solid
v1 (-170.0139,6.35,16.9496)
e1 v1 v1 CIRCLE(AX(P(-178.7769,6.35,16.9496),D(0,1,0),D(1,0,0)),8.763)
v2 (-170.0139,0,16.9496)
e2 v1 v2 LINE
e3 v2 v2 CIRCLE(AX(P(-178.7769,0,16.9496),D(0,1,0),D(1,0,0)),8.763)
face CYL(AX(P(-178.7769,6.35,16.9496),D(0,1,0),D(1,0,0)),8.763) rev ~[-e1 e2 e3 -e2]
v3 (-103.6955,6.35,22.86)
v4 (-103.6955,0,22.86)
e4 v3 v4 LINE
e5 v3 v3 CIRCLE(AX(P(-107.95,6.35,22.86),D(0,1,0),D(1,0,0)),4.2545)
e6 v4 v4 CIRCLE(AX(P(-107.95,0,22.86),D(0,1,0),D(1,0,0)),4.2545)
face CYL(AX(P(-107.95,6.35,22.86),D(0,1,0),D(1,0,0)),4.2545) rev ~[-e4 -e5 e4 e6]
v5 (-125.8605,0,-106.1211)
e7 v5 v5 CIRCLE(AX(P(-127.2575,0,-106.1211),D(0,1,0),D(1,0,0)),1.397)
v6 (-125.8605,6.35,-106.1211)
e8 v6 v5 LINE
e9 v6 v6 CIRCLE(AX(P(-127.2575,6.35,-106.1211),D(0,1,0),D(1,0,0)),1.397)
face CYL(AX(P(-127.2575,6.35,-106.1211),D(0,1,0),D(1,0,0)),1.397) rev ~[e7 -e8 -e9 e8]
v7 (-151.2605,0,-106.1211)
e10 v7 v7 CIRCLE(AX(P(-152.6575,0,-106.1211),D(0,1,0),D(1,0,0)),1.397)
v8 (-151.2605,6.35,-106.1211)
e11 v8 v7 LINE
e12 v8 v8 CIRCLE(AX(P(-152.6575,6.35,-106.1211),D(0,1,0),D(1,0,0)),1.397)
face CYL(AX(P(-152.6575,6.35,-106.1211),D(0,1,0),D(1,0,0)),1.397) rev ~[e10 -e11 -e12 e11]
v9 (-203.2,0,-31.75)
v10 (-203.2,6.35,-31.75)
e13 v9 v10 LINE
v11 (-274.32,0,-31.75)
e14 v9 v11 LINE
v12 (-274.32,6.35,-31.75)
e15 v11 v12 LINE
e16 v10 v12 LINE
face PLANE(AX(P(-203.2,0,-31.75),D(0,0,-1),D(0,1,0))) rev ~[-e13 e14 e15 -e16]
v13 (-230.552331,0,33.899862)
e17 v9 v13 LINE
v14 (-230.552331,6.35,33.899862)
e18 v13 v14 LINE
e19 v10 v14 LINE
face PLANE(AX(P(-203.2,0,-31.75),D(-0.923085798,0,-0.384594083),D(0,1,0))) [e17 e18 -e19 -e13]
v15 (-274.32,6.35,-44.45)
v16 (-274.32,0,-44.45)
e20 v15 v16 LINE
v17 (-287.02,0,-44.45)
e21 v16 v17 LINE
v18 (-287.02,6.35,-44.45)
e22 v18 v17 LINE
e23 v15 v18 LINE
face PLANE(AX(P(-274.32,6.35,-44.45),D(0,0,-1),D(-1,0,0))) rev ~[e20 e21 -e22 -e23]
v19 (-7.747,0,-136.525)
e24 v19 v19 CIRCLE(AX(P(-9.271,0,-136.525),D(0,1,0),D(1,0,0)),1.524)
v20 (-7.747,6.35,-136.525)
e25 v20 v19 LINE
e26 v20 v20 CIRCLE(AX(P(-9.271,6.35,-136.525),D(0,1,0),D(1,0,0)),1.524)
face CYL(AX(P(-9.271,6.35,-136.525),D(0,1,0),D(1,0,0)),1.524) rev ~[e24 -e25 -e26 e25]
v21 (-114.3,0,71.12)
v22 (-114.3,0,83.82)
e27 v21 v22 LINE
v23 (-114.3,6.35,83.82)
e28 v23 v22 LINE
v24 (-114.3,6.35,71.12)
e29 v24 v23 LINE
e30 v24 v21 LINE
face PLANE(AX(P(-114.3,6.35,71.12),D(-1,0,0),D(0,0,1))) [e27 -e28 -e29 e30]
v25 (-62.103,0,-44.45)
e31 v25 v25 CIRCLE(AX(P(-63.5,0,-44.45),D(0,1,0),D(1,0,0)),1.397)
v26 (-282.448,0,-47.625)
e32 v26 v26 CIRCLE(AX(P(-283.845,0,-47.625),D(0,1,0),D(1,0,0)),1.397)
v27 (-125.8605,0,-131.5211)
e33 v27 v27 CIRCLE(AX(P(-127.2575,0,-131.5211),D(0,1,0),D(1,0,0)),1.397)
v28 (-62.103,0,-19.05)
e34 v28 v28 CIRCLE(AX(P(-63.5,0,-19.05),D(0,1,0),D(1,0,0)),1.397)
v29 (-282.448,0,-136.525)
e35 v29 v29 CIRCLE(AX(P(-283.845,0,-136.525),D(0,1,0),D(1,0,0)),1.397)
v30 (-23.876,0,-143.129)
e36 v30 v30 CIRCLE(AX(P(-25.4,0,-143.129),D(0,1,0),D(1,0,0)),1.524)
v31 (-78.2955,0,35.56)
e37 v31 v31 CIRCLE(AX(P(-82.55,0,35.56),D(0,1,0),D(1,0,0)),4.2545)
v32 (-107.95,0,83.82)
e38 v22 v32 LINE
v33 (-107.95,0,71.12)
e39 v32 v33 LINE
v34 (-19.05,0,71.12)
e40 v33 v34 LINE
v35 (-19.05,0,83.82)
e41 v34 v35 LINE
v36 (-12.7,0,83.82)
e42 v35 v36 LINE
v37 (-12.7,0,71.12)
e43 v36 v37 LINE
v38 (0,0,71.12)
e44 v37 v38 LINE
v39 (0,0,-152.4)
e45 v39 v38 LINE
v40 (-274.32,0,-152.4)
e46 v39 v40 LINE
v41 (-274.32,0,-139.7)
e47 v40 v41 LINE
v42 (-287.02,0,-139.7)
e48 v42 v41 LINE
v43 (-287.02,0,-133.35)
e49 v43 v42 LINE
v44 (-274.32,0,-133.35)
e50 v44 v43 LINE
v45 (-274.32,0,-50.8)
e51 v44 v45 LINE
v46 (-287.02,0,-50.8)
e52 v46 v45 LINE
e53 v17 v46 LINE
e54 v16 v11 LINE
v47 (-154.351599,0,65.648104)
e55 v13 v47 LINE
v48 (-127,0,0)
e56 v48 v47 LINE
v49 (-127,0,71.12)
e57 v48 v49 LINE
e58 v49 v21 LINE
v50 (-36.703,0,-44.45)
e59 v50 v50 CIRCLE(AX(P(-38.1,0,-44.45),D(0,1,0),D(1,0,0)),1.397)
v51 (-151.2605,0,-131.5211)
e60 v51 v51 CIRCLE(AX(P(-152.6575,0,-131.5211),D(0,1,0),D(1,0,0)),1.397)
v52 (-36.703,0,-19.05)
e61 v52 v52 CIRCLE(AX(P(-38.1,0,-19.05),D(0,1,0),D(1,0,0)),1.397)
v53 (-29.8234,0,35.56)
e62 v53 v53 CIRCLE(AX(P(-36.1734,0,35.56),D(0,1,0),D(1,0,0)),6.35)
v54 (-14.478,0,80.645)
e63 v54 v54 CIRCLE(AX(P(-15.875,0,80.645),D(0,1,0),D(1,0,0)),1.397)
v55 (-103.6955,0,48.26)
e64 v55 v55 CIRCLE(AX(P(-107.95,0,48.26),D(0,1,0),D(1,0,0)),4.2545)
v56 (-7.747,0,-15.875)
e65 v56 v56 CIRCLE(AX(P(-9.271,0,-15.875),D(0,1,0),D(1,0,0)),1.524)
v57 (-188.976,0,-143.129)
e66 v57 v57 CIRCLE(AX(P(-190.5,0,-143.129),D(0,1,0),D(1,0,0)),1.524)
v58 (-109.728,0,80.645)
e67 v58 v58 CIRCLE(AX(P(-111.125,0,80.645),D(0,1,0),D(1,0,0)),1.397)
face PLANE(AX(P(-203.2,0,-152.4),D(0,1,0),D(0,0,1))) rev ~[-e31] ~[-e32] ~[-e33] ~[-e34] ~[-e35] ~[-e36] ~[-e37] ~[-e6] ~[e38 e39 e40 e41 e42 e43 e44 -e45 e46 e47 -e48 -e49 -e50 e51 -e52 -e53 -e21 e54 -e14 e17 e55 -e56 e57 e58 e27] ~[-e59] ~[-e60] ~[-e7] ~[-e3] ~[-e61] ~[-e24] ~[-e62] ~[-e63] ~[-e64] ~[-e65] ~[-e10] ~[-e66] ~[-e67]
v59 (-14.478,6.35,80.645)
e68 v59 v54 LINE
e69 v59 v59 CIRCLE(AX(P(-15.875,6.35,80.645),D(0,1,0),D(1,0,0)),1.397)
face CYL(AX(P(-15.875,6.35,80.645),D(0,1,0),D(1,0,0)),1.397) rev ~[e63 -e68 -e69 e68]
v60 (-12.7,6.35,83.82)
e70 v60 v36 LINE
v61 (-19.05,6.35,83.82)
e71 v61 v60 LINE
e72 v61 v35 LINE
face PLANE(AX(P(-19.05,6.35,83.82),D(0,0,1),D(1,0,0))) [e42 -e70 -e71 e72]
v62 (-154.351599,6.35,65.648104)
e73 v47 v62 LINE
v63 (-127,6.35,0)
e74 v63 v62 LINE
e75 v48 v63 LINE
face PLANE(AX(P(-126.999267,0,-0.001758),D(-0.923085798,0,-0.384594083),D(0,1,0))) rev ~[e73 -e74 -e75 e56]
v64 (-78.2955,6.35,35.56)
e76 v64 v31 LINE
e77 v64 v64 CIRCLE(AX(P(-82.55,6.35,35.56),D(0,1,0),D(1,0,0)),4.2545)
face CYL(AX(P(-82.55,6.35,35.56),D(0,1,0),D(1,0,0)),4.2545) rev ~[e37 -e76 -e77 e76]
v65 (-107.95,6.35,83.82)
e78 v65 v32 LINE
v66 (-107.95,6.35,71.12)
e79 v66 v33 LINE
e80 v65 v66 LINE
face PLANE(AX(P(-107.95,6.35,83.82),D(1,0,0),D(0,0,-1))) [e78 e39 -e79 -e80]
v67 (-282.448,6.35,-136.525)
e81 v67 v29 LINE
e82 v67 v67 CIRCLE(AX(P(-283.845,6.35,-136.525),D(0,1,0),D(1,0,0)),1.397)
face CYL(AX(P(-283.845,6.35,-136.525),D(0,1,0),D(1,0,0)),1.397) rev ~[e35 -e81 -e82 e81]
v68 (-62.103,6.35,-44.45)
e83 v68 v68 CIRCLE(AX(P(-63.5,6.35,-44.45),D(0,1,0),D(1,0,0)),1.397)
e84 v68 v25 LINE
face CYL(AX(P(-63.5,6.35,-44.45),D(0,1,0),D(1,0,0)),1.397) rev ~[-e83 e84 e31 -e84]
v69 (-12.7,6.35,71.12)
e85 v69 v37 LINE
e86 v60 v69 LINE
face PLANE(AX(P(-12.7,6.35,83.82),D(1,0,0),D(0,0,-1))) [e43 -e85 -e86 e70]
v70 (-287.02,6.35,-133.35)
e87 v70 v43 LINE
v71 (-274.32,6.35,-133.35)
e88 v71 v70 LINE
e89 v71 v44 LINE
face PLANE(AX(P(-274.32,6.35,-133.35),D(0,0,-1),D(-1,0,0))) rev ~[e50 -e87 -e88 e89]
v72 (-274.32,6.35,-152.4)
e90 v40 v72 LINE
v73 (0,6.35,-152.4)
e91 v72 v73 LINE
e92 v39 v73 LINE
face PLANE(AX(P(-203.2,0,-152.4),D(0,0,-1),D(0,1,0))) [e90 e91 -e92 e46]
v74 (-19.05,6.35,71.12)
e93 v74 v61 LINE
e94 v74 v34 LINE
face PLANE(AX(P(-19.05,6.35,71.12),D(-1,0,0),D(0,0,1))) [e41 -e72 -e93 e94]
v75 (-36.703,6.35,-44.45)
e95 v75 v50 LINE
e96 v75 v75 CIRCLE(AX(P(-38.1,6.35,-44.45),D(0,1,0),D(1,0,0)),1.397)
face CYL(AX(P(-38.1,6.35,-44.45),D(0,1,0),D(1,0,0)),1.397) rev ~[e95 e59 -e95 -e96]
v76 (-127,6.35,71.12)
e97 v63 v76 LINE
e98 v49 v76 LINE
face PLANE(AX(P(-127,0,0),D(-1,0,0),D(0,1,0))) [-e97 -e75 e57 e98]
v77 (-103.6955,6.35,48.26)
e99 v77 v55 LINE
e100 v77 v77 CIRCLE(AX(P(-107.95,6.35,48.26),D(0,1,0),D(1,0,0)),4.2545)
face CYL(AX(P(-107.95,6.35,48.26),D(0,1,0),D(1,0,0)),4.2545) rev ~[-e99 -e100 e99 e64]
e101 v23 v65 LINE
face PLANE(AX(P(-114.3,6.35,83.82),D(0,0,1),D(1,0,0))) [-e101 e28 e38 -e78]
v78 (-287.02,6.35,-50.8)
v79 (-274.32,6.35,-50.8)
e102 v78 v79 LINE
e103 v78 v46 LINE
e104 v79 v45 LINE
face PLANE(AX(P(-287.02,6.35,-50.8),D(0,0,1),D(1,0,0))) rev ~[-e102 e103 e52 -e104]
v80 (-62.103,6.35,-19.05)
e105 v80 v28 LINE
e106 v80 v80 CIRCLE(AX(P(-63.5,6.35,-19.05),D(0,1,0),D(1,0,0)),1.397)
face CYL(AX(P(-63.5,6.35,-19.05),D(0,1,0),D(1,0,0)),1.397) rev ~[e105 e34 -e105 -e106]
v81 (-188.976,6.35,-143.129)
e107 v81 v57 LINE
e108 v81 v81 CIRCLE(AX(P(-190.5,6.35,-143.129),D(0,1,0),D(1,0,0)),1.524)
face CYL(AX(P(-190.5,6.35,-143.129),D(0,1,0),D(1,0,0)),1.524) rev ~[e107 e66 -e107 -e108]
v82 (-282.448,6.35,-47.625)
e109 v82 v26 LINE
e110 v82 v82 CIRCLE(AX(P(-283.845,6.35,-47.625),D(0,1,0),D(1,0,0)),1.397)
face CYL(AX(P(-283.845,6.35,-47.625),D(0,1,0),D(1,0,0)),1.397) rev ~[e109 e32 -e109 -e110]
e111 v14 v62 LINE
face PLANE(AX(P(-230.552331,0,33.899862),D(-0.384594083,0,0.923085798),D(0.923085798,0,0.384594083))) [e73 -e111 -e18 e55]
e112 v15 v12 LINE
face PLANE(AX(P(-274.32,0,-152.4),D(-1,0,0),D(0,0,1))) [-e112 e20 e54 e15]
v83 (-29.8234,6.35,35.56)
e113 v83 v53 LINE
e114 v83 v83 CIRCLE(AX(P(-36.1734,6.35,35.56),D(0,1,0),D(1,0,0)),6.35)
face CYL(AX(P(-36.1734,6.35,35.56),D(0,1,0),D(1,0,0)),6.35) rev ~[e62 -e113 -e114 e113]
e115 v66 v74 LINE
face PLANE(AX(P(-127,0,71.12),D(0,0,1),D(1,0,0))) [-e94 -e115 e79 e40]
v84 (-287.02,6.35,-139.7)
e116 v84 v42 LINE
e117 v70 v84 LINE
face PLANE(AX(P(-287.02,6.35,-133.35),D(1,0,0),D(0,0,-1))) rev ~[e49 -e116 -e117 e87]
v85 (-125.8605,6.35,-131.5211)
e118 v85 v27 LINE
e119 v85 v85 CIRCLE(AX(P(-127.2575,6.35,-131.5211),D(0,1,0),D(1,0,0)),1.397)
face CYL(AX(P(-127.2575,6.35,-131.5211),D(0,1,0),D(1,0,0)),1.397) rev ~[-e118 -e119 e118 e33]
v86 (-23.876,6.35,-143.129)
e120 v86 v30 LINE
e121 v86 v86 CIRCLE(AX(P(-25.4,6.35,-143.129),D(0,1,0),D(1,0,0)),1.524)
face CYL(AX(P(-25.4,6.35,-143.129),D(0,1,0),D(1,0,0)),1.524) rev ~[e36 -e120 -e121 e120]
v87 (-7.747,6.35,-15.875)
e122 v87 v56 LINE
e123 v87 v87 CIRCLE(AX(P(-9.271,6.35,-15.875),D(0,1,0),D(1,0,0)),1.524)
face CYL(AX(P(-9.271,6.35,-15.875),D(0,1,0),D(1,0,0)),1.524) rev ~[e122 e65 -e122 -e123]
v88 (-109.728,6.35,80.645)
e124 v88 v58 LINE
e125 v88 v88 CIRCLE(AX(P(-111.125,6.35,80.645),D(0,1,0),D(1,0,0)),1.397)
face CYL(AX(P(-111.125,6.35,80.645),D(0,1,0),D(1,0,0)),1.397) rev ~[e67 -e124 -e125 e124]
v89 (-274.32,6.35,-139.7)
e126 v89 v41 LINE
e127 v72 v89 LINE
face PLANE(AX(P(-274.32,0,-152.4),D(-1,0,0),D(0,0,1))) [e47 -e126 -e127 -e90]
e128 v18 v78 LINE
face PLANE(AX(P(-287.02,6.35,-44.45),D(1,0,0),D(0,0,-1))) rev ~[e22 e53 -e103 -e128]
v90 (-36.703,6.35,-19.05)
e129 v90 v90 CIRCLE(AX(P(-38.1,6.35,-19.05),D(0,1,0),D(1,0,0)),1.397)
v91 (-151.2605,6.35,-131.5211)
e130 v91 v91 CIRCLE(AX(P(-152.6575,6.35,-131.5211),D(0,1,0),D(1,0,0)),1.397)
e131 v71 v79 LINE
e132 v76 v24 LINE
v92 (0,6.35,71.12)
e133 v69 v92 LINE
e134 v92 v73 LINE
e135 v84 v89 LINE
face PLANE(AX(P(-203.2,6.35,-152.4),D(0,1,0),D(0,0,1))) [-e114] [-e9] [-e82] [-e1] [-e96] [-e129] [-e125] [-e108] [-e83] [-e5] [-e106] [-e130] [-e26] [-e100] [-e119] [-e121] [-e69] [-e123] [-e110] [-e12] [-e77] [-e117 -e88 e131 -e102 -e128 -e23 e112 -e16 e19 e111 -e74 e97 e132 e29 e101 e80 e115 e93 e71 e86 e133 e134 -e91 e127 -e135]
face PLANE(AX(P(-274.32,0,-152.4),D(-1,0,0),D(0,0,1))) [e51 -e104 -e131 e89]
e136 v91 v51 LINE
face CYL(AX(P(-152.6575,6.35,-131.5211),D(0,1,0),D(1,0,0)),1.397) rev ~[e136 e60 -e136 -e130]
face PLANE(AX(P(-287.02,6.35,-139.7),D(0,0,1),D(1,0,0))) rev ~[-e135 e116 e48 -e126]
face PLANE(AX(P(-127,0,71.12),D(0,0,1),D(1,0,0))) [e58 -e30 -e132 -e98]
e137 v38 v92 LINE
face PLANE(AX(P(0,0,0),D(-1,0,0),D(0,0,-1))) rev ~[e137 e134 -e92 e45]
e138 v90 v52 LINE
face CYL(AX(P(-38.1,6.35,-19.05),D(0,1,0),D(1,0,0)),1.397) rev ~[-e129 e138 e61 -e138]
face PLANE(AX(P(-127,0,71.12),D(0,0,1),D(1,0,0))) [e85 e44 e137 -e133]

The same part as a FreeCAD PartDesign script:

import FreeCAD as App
import Part
import Sketcher
Q = App.Units.Quantity

doc = App.newDocument("Part")
params = doc.addObject("Spreadsheet::Sheet", "Params")
for row, (alias, value) in enumerate([
    ("sketch1_width", "5 in"),
    ("sketch1_width2", "8 in"),
    ("sketch1_height", "6 in"),
    ("sketch1_height2", "4.75 in"),
    ("pad1_length", "0.25 in"),
    ("sketch2_width", "5 in"),
    ("sketch2_height", "0.25 in"),
    ("pad2_length", "2.8 in"),
    ("sketch3_width", "3.25 in"),
    ("sketch3_height", "0.25 in"),
    ("pad3_length", "2.8 in"),
    ("sketch4_width", "0.25 in"),
    ("sketch4_height", "4.75 in"),
    ("pad4_length", "2.8 in"),
    ("sketch5_diameter", "0.11 in"),
    ("sketch5_height", "0.5 in"),
    ("sketch5_width", "0.25 in"),
    ("pad5_length", "0.25 in"),
    ("sketch6_diameter", "0.11 in"),
    ("sketch6_width", "0.5 in"),
    ("sketch6_height", "0.25 in"),
    ("pad6_length", "0.25 in"),
    ("sketch7_diameter", "0.11 in"),
    ("pocket1_length", "0.25 in"),
    ("sketch8_diameter", "0.12 in"),
    ("pocket2_length", "0.25 in"),
    ("sketch9_diameter", "0.69 in"),
    ("sketch9_diameter2", "0.335 in"),
    ("pocket3_length", "0.25 in"),
    ("sketch10_diameter", "0.5 in"),
    ("pocket4_length", "0.25 in"),
], start=1):
    params.set(f"A{row}", alias)
    params.set(f"B{row}", "=" + value)
    params.setAlias(f"B{row}", alias)

body = doc.addObject("PartDesign::Body", "Body")

sketch1 = body.newObject("Sketcher::SketchObject", "Sketch")
sketch1.AttachmentSupport = (doc.getObject("XZ_Plane"), [""])
sketch1.MapMode = "FlatFace"
sketch1.addGeometry(Part.LineSegment(App.Vector(-127, 0, 0), App.Vector(0, 0, 0)), False)
sketch1.addGeometry(Part.LineSegment(App.Vector(0, 0, 0), App.Vector(0, -152, 0)), False)
sketch1.addGeometry(Part.LineSegment(App.Vector(0, -152, 0), App.Vector(-203, -152, 0)), False)
sketch1.addGeometry(Part.LineSegment(App.Vector(-203, -152, 0), App.Vector(-203, -32, 0)), False)
sketch1.addGeometry(Part.LineSegment(App.Vector(-203, -32, 0), App.Vector(-127, 0, 0)), False)
sketch1.addConstraint(Sketcher.Constraint("Coincident", 0, 2, 1, 1))
sketch1.addConstraint(Sketcher.Constraint("Coincident", 1, 2, 2, 1))
sketch1.addConstraint(Sketcher.Constraint("Coincident", 2, 2, 3, 1))
sketch1.addConstraint(Sketcher.Constraint("Coincident", 3, 2, 4, 1))
sketch1.addConstraint(Sketcher.Constraint("Coincident", 4, 2, 0, 1))
sketch1.addConstraint(Sketcher.Constraint("Horizontal", 0))
sketch1.addConstraint(Sketcher.Constraint("Vertical", 1))
sketch1.addConstraint(Sketcher.Constraint("Horizontal", 2))
sketch1.addConstraint(Sketcher.Constraint("Vertical", 3))
sketch1.addConstraint(Sketcher.Constraint("Coincident", 0, 2, -1, 1))
sketch1.addConstraint(Sketcher.Constraint("DistanceX", 0, 1, 0, 2, Q("5 in")))
sketch1.addConstraint(Sketcher.Constraint("DistanceX", 2, 2, 2, 1, Q("8 in")))
sketch1.addConstraint(Sketcher.Constraint("DistanceY", 1, 2, 1, 1, Q("6 in")))
sketch1.addConstraint(Sketcher.Constraint("DistanceY", 3, 1, 3, 2, Q("4.75 in")))
sketch1.setExpression("Constraints[10]", "Params.sketch1_width")
sketch1.setExpression("Constraints[11]", "Params.sketch1_width2")
sketch1.setExpression("Constraints[12]", "Params.sketch1_height")
sketch1.setExpression("Constraints[13]", "Params.sketch1_height2")
pad1 = body.newObject("PartDesign::Pad", "Pad")
pad1.Profile = sketch1
pad1.setExpression("Length", "Params.pad1_length")
pad1.Reversed = True

sketch2 = body.newObject("Sketcher::SketchObject", "Sketch001")
sketch2.AttachmentSupport = (doc.getObject("XY_Plane"), [""])
sketch2.MapMode = "FlatFace"
sketch2.addGeometry(Part.LineSegment(App.Vector(-127, 6, 0), App.Vector(-127, 0, 0)), False)
sketch2.addGeometry(Part.LineSegment(App.Vector(-127, 0, 0), App.Vector(0, 0, 0)), False)
sketch2.addGeometry(Part.LineSegment(App.Vector(0, 0, 0), App.Vector(0, 6, 0)), False)
sketch2.addGeometry(Part.LineSegment(App.Vector(0, 6, 0), App.Vector(-127, 6, 0)), False)
sketch2.addConstraint(Sketcher.Constraint("Coincident", 0, 2, 1, 1))
sketch2.addConstraint(Sketcher.Constraint("Coincident", 1, 2, 2, 1))
sketch2.addConstraint(Sketcher.Constraint("Coincident", 2, 2, 3, 1))
sketch2.addConstraint(Sketcher.Constraint("Coincident", 3, 2, 0, 1))
sketch2.addConstraint(Sketcher.Constraint("Vertical", 0))
sketch2.addConstraint(Sketcher.Constraint("Horizontal", 1))
sketch2.addConstraint(Sketcher.Constraint("Vertical", 2))
sketch2.addConstraint(Sketcher.Constraint("Horizontal", 3))
sketch2.addConstraint(Sketcher.Constraint("Coincident", 1, 2, -1, 1))
sketch2.addConstraint(Sketcher.Constraint("DistanceX", 1, 1, 1, 2, Q("5 in")))
sketch2.addConstraint(Sketcher.Constraint("DistanceY", 0, 2, 0, 1, Q("0.25 in")))
sketch2.setExpression("Constraints[9]", "Params.sketch2_width")
sketch2.setExpression("Constraints[10]", "Params.sketch2_height")
pad2 = body.newObject("PartDesign::Pad", "Pad001")
pad2.Profile = sketch2
pad2.setExpression("Length", "Params.pad2_length")

sketch3 = body.newObject("Sketcher::SketchObject", "Sketch002")
sketch3.Placement = App.Placement(App.Vector(-203.2, 0, -31.75), App.Rotation(App.Vector(0.923085798, 0, 0.384594083), App.Vector(0, 0.999999999, 0), App.Vector(-0.384594083, 0, 0.923085798), "ZXY"))
sketch3.addGeometry(Part.LineSegment(App.Vector(0, 6, 0), App.Vector(0, 0, 0)), False)
sketch3.addGeometry(Part.LineSegment(App.Vector(0, 0, 0), App.Vector(83, 0, 0)), False)
sketch3.addGeometry(Part.LineSegment(App.Vector(83, 0, 0), App.Vector(83, 6, 0)), False)
sketch3.addGeometry(Part.LineSegment(App.Vector(83, 6, 0), App.Vector(0, 6, 0)), False)
sketch3.addConstraint(Sketcher.Constraint("Coincident", 0, 2, 1, 1))
sketch3.addConstraint(Sketcher.Constraint("Coincident", 1, 2, 2, 1))
sketch3.addConstraint(Sketcher.Constraint("Coincident", 2, 2, 3, 1))
sketch3.addConstraint(Sketcher.Constraint("Coincident", 3, 2, 0, 1))
sketch3.addConstraint(Sketcher.Constraint("Vertical", 0))
sketch3.addConstraint(Sketcher.Constraint("Horizontal", 1))
sketch3.addConstraint(Sketcher.Constraint("Vertical", 2))
sketch3.addConstraint(Sketcher.Constraint("Horizontal", 3))
sketch3.addConstraint(Sketcher.Constraint("Coincident", 0, 2, -1, 1))
sketch3.addConstraint(Sketcher.Constraint("DistanceX", 1, 1, 1, 2, Q("3.25 in")))
sketch3.addConstraint(Sketcher.Constraint("DistanceY", 0, 2, 0, 1, Q("0.25 in")))
sketch3.setExpression("Constraints[9]", "Params.sketch3_width")
sketch3.setExpression("Constraints[10]", "Params.sketch3_height")
pad3 = body.newObject("PartDesign::Pad", "Pad002")
pad3.Profile = sketch3
pad3.setExpression("Length", "Params.pad3_length")

sketch4 = body.newObject("Sketcher::SketchObject", "Sketch003")
sketch4.AttachmentSupport = (doc.getObject("YZ_Plane"), [""])
sketch4.MapMode = "FlatFace"
sketch4.AttachmentOffset = App.Placement(App.Vector(0, 0, -8 * 25.4), App.Rotation())
sketch4.addGeometry(Part.LineSegment(App.Vector(6, -152, 0), App.Vector(0, -152, 0)), False)
sketch4.addGeometry(Part.LineSegment(App.Vector(0, -152, 0), App.Vector(0, -32, 0)), False)
sketch4.addGeometry(Part.LineSegment(App.Vector(0, -32, 0), App.Vector(6, -32, 0)), False)
sketch4.addGeometry(Part.LineSegment(App.Vector(6, -32, 0), App.Vector(6, -152, 0)), False)
sketch4.addConstraint(Sketcher.Constraint("Coincident", 0, 2, 1, 1))
sketch4.addConstraint(Sketcher.Constraint("Coincident", 1, 2, 2, 1))
sketch4.addConstraint(Sketcher.Constraint("Coincident", 2, 2, 3, 1))
sketch4.addConstraint(Sketcher.Constraint("Coincident", 3, 2, 0, 1))
sketch4.addConstraint(Sketcher.Constraint("Horizontal", 0))
sketch4.addConstraint(Sketcher.Constraint("Vertical", 1))
sketch4.addConstraint(Sketcher.Constraint("Horizontal", 2))
sketch4.addConstraint(Sketcher.Constraint("Vertical", 3))
sketch4.addConstraint(Sketcher.Constraint("PointOnObject", 0, 2, -2))
sketch4.addConstraint(Sketcher.Constraint("DistanceY", 0, 2, -1, 1, Q("6 in")))
sketch4.addConstraint(Sketcher.Constraint("DistanceX", 0, 2, 0, 1, Q("0.25 in")))
sketch4.addConstraint(Sketcher.Constraint("DistanceY", 1, 1, 1, 2, Q("4.75 in")))
sketch4.setExpression("Constraints[10]", "Params.sketch4_width")
sketch4.setExpression("Constraints[11]", "Params.sketch4_height")
pad4 = body.newObject("PartDesign::Pad", "Pad003")
pad4.Profile = sketch4
pad4.setExpression("Length", "Params.pad4_length")
pad4.Reversed = True

sketch5 = body.newObject("Sketcher::SketchObject", "Sketch004")
sketch5.AttachmentSupport = (doc.getObject("XZ_Plane"), [""])
sketch5.MapMode = "FlatFace"
sketch5.AttachmentOffset = App.Placement(App.Vector(0, 0, -0.25 * 25.4), App.Rotation())
sketch5.addGeometry(Part.LineSegment(App.Vector(-12.7, 83.8, 0), App.Vector(-12.7, 71.1, 0)), False)
sketch5.addGeometry(Part.LineSegment(App.Vector(-12.7, 71.1, 0), App.Vector(-19.1, 71.1, 0)), False)
sketch5.addGeometry(Part.LineSegment(App.Vector(-19.1, 71.1, 0), App.Vector(-19.1, 83.8, 0)), False)
sketch5.addGeometry(Part.LineSegment(App.Vector(-19.1, 83.8, 0), App.Vector(-12.7, 83.8, 0)), False)
sketch5.addGeometry(Part.Circle(App.Vector(-15.9, 80.6, 0), App.Vector(0, 0, 1), 1.4), False)
sketch5.addGeometry(Part.LineSegment(App.Vector(-108, 83.8, 0), App.Vector(-108, 71.1, 0)), False)
sketch5.addGeometry(Part.LineSegment(App.Vector(-108, 71.1, 0), App.Vector(-114.3, 71.1, 0)), False)
sketch5.addGeometry(Part.LineSegment(App.Vector(-114.3, 71.1, 0), App.Vector(-114.3, 83.8, 0)), False)
sketch5.addGeometry(Part.LineSegment(App.Vector(-114.3, 83.8, 0), App.Vector(-108, 83.8, 0)), False)
sketch5.addGeometry(Part.Circle(App.Vector(-111.1, 80.6, 0), App.Vector(0, 0, 1), 1.4), False)
sketch5.addConstraint(Sketcher.Constraint("Coincident", 0, 2, 1, 1))
sketch5.addConstraint(Sketcher.Constraint("Coincident", 1, 2, 2, 1))
sketch5.addConstraint(Sketcher.Constraint("Coincident", 2, 2, 3, 1))
sketch5.addConstraint(Sketcher.Constraint("Coincident", 3, 2, 0, 1))
sketch5.addConstraint(Sketcher.Constraint("Coincident", 5, 2, 6, 1))
sketch5.addConstraint(Sketcher.Constraint("Coincident", 6, 2, 7, 1))
sketch5.addConstraint(Sketcher.Constraint("Coincident", 7, 2, 8, 1))
sketch5.addConstraint(Sketcher.Constraint("Coincident", 8, 2, 5, 1))
sketch5.addConstraint(Sketcher.Constraint("Vertical", 0))
sketch5.addConstraint(Sketcher.Constraint("Horizontal", 1))
sketch5.addConstraint(Sketcher.Constraint("Vertical", 2))
sketch5.addConstraint(Sketcher.Constraint("Horizontal", 3))
sketch5.addConstraint(Sketcher.Constraint("Vertical", 5))
sketch5.addConstraint(Sketcher.Constraint("Horizontal", 6))
sketch5.addConstraint(Sketcher.Constraint("Vertical", 7))
sketch5.addConstraint(Sketcher.Constraint("Horizontal", 8))
sketch5.addConstraint(Sketcher.Constraint("Equal", 4, 9))
sketch5.addConstraint(Sketcher.Constraint("Horizontal", 4, 3, 9, 3))
sketch5.addConstraint(Sketcher.Constraint("Horizontal", 1, 2, 5, 2))
sketch5.addConstraint(Sketcher.Constraint("Horizontal", 3, 2, 7, 2))
sketch5.addConstraint(Sketcher.Constraint("Equal", 3, 6))
sketch5.addConstraint(Sketcher.Constraint("Diameter", 4, Q("0.11 in")))
sketch5.addConstraint(Sketcher.Constraint("DistanceY", 0, 2, 0, 1, Q("0.5 in")))
sketch5.addConstraint(Sketcher.Constraint("DistanceX", 1, 2, 1, 1, Q("0.25 in")))
sketch5.addConstraint(Sketcher.Constraint("DistanceX", 0, 2, -1, 1, Q("0.5 in")))
sketch5.addConstraint(Sketcher.Constraint("DistanceX", 4, 3, 0, 2, Q("0.125 in")))
sketch5.addConstraint(Sketcher.Constraint("DistanceY", 4, 3, 2, 2, Q("0.125 in")))
sketch5.addConstraint(Sketcher.Constraint("DistanceX", 9, 3, 5, 2, Q("0.125 in")))
sketch5.addConstraint(Sketcher.Constraint("DistanceY", -1, 1, 0, 2, Q("2.8 in")))
sketch5.addConstraint(Sketcher.Constraint("DistanceX", 6, 2, -1, 1, Q("4.5 in")))
sketch5.setExpression("Constraints[21]", "Params.sketch5_diameter")
sketch5.setExpression("Constraints[22]", "Params.sketch5_height")
sketch5.setExpression("Constraints[23]", "Params.sketch5_width")
pad5 = body.newObject("PartDesign::Pad", "Pad004")
pad5.Profile = sketch5
pad5.setExpression("Length", "Params.pad5_length")

sketch6 = body.newObject("Sketcher::SketchObject", "Sketch005")
sketch6.AttachmentSupport = (doc.getObject("XZ_Plane"), [""])
sketch6.MapMode = "FlatFace"
sketch6.AttachmentOffset = App.Placement(App.Vector(0, 0, -0.25 * 25.4), App.Rotation())
sketch6.addGeometry(Part.LineSegment(App.Vector(-274.3, -44.5, 0), App.Vector(-274.3, -50.8, 0)), False)
sketch6.addGeometry(Part.LineSegment(App.Vector(-274.3, -50.8, 0), App.Vector(-287, -50.8, 0)), False)
sketch6.addGeometry(Part.LineSegment(App.Vector(-287, -50.8, 0), App.Vector(-287, -44.5, 0)), False)
sketch6.addGeometry(Part.LineSegment(App.Vector(-287, -44.5, 0), App.Vector(-274.3, -44.5, 0)), False)
sketch6.addGeometry(Part.Circle(App.Vector(-283.8, -47.6, 0), App.Vector(0, 0, 1), 1.4), False)
sketch6.addGeometry(Part.LineSegment(App.Vector(-274.3, -133.3, 0), App.Vector(-274.3, -139.7, 0)), False)
sketch6.addGeometry(Part.LineSegment(App.Vector(-274.3, -139.7, 0), App.Vector(-287, -139.7, 0)), False)
sketch6.addGeometry(Part.LineSegment(App.Vector(-287, -139.7, 0), App.Vector(-287, -133.3, 0)), False)
sketch6.addGeometry(Part.LineSegment(App.Vector(-287, -133.3, 0), App.Vector(-274.3, -133.3, 0)), False)
sketch6.addGeometry(Part.Circle(App.Vector(-283.8, -136.5, 0), App.Vector(0, 0, 1), 1.4), False)
sketch6.addConstraint(Sketcher.Constraint("Coincident", 0, 2, 1, 1))
sketch6.addConstraint(Sketcher.Constraint("Coincident", 1, 2, 2, 1))
sketch6.addConstraint(Sketcher.Constraint("Coincident", 2, 2, 3, 1))
sketch6.addConstraint(Sketcher.Constraint("Coincident", 3, 2, 0, 1))
sketch6.addConstraint(Sketcher.Constraint("Coincident", 5, 2, 6, 1))
sketch6.addConstraint(Sketcher.Constraint("Coincident", 6, 2, 7, 1))
sketch6.addConstraint(Sketcher.Constraint("Coincident", 7, 2, 8, 1))
sketch6.addConstraint(Sketcher.Constraint("Coincident", 8, 2, 5, 1))
sketch6.addConstraint(Sketcher.Constraint("Vertical", 0))
sketch6.addConstraint(Sketcher.Constraint("Horizontal", 1))
sketch6.addConstraint(Sketcher.Constraint("Vertical", 2))
sketch6.addConstraint(Sketcher.Constraint("Horizontal", 3))
sketch6.addConstraint(Sketcher.Constraint("Vertical", 5))
sketch6.addConstraint(Sketcher.Constraint("Horizontal", 6))
sketch6.addConstraint(Sketcher.Constraint("Vertical", 7))
sketch6.addConstraint(Sketcher.Constraint("Horizontal", 8))
sketch6.addConstraint(Sketcher.Constraint("Equal", 4, 9))
sketch6.addConstraint(Sketcher.Constraint("Vertical", 4, 3, 9, 3))
sketch6.addConstraint(Sketcher.Constraint("Vertical", 3, 2, 5, 2))
sketch6.addConstraint(Sketcher.Constraint("Vertical", 2, 2, 6, 2))
sketch6.addConstraint(Sketcher.Constraint("Equal", 2, 5))
sketch6.addConstraint(Sketcher.Constraint("Diameter", 4, Q("0.11 in")))
sketch6.addConstraint(Sketcher.Constraint("DistanceX", 1, 2, 1, 1, Q("0.5 in")))
sketch6.addConstraint(Sketcher.Constraint("DistanceY", 0, 2, 0, 1, Q("0.25 in")))
sketch6.addConstraint(Sketcher.Constraint("DistanceY", 0, 2, -1, 1, Q("2 in")))
sketch6.addConstraint(Sketcher.Constraint("DistanceY", 0, 2, 4, 3, Q("0.125 in")))
sketch6.addConstraint(Sketcher.Constraint("DistanceX", 1, 2, 4, 3, Q("0.125 in")))
sketch6.addConstraint(Sketcher.Constraint("DistanceY", 5, 2, 9, 3, Q("0.125 in")))
sketch6.addConstraint(Sketcher.Constraint("DistanceX", 0, 2, -1, 1, Q("10.8 in")))
sketch6.addConstraint(Sketcher.Constraint("DistanceY", 5, 2, -1, 1, Q("5.5 in")))
sketch6.setExpression("Constraints[21]", "Params.sketch6_diameter")
sketch6.setExpression("Constraints[22]", "Params.sketch6_width")
sketch6.setExpression("Constraints[23]", "Params.sketch6_height")
pad6 = body.newObject("PartDesign::Pad", "Pad005")
pad6.Profile = sketch6
pad6.setExpression("Length", "Params.pad6_length")

sketch7 = body.newObject("Sketcher::SketchObject", "Sketch006")
sketch7.AttachmentSupport = (doc.getObject("XZ_Plane"), [""])
sketch7.MapMode = "FlatFace"
sketch7.AttachmentOffset = App.Placement(App.Vector(0, 0, -0.25 * 25.4), App.Rotation())
sketch7.addGeometry(Part.Circle(App.Vector(-38.1, -19.1, 0), App.Vector(0, 0, 1), 1.4), False)
sketch7.addGeometry(Part.Circle(App.Vector(-63.5, -19.1, 0), App.Vector(0, 0, 1), 1.4), False)
sketch7.addGeometry(Part.Circle(App.Vector(-38.1, -44.5, 0), App.Vector(0, 0, 1), 1.4), False)
sketch7.addGeometry(Part.Circle(App.Vector(-63.5, -44.5, 0), App.Vector(0, 0, 1), 1.4), False)
sketch7.addGeometry(Part.Circle(App.Vector(-127.3, -106.1, 0), App.Vector(0, 0, 1), 1.4), False)
sketch7.addGeometry(Part.Circle(App.Vector(-152.7, -106.1, 0), App.Vector(0, 0, 1), 1.4), False)
sketch7.addGeometry(Part.Circle(App.Vector(-127.3, -131.5, 0), App.Vector(0, 0, 1), 1.4), False)
sketch7.addGeometry(Part.Circle(App.Vector(-152.7, -131.5, 0), App.Vector(0, 0, 1), 1.4), False)
sketch7.addConstraint(Sketcher.Constraint("Equal", 0, 1))
sketch7.addConstraint(Sketcher.Constraint("Equal", 1, 2))
sketch7.addConstraint(Sketcher.Constraint("Equal", 2, 3))
sketch7.addConstraint(Sketcher.Constraint("Equal", 3, 4))
sketch7.addConstraint(Sketcher.Constraint("Equal", 4, 5))
sketch7.addConstraint(Sketcher.Constraint("Equal", 5, 6))
sketch7.addConstraint(Sketcher.Constraint("Equal", 6, 7))
sketch7.addConstraint(Sketcher.Constraint("Horizontal", 0, 3, 1, 3))
sketch7.addConstraint(Sketcher.Constraint("Horizontal", 2, 3, 3, 3))
sketch7.addConstraint(Sketcher.Constraint("Horizontal", 4, 3, 5, 3))
sketch7.addConstraint(Sketcher.Constraint("Horizontal", 6, 3, 7, 3))
sketch7.addConstraint(Sketcher.Constraint("Vertical", 0, 3, 2, 3))
sketch7.addConstraint(Sketcher.Constraint("Vertical", 1, 3, 3, 3))
sketch7.addConstraint(Sketcher.Constraint("Vertical", 4, 3, 6, 3))
sketch7.addConstraint(Sketcher.Constraint("Vertical", 5, 3, 7, 3))
sketch7.addConstraint(Sketcher.Constraint("Diameter", 0, Q("0.11 in")))
sketch7.addConstraint(Sketcher.Constraint("DistanceX", 1, 3, 0, 3, Q("1 in")))
sketch7.addConstraint(Sketcher.Constraint("DistanceY", 2, 3, 0, 3, Q("1 in")))
sketch7.addConstraint(Sketcher.Constraint("DistanceX", 5, 3, 4, 3, Q("1 in")))
sketch7.addConstraint(Sketcher.Constraint("DistanceY", 6, 3, 4, 3, Q("1 in")))
sketch7.addConstraint(Sketcher.Constraint("DistanceX", 0, 3, -1, 1, Q("1.5 in")))
sketch7.addConstraint(Sketcher.Constraint("DistanceY", 0, 3, -1, 1, Q("0.75 in")))
sketch7.addConstraint(Sketcher.Constraint("DistanceY", 4, 3, -1, 1, Q("4.178 in")))
sketch7.addConstraint(Sketcher.Constraint("DistanceX", 4, 3, -1, 1, Q("127.2575 mm")))
sketch7.setExpression("Constraints[15]", "Params.sketch7_diameter")
pocket1 = body.newObject("PartDesign::Pocket", "Pocket")
pocket1.Profile = sketch7
pocket1.setExpression("Length", "Params.pocket1_length")
pocket1.Reversed = True

sketch8 = body.newObject("Sketcher::SketchObject", "Sketch007")
sketch8.AttachmentSupport = (doc.getObject("XZ_Plane"), [""])
sketch8.MapMode = "FlatFace"
sketch8.AttachmentOffset = App.Placement(App.Vector(0, 0, -0.25 * 25.4), App.Rotation())
sketch8.addGeometry(Part.Circle(App.Vector(-9.3, -15.9, 0), App.Vector(0, 0, 1), 1.5), False)
sketch8.addGeometry(Part.Circle(App.Vector(-9.3, -136.5, 0), App.Vector(0, 0, 1), 1.5), False)
sketch8.addGeometry(Part.Circle(App.Vector(-25.4, -143.1, 0), App.Vector(0, 0, 1), 1.5), False)
sketch8.addGeometry(Part.Circle(App.Vector(-190.5, -143.1, 0), App.Vector(0, 0, 1), 1.5), False)
sketch8.addConstraint(Sketcher.Constraint("Equal", 0, 1))
sketch8.addConstraint(Sketcher.Constraint("Equal", 1, 2))
sketch8.addConstraint(Sketcher.Constraint("Equal", 2, 3))
sketch8.addConstraint(Sketcher.Constraint("Horizontal", 2, 3, 3, 3))
sketch8.addConstraint(Sketcher.Constraint("Vertical", 0, 3, 1, 3))
sketch8.addConstraint(Sketcher.Constraint("Diameter", 0, Q("0.12 in")))
sketch8.addConstraint(Sketcher.Constraint("DistanceX", 2, 3, -1, 1, Q("1 in")))
sketch8.addConstraint(Sketcher.Constraint("DistanceY", 1, 3, 0, 3, Q("4.75 in")))
sketch8.addConstraint(Sketcher.Constraint("DistanceX", 0, 3, -1, 1, Q("0.365 in")))
sketch8.addConstraint(Sketcher.Constraint("DistanceY", 0, 3, -1, 1, Q("0.625 in")))
sketch8.addConstraint(Sketcher.Constraint("DistanceX", 3, 3, -1, 1, Q("7.5 in")))
sketch8.addConstraint(Sketcher.Constraint("DistanceY", 2, 3, 1, 3, Q("0.26 in")))
sketch8.setExpression("Constraints[5]", "Params.sketch8_diameter")
pocket2 = body.newObject("PartDesign::Pocket", "Pocket001")
pocket2.Profile = sketch8
pocket2.setExpression("Length", "Params.pocket2_length")
pocket2.Reversed = True

sketch9 = body.newObject("Sketcher::SketchObject", "Sketch008")
sketch9.AttachmentSupport = (doc.getObject("XZ_Plane"), [""])
sketch9.MapMode = "FlatFace"
sketch9.AttachmentOffset = App.Placement(App.Vector(0, 0, -0.25 * 25.4), App.Rotation())
sketch9.addGeometry(Part.Circle(App.Vector(-178.8, 16.9, 0), App.Vector(0, 0, 1), 8.8), False)
sketch9.addGeometry(Part.Circle(App.Vector(-108, 48.3, 0), App.Vector(0, 0, 1), 4.3), False)
sketch9.addGeometry(Part.Circle(App.Vector(-82.5, 35.6, 0), App.Vector(0, 0, 1), 4.3), False)
sketch9.addGeometry(Part.Circle(App.Vector(-108, 22.9, 0), App.Vector(0, 0, 1), 4.3), False)
sketch9.addConstraint(Sketcher.Constraint("Equal", 1, 2))
sketch9.addConstraint(Sketcher.Constraint("Equal", 2, 3))
sketch9.addConstraint(Sketcher.Constraint("Vertical", 1, 3, 3, 3))
sketch9.addConstraint(Sketcher.Constraint("Diameter", 0, Q("0.69 in")))
sketch9.addConstraint(Sketcher.Constraint("Diameter", 1, Q("0.335 in")))
sketch9.addConstraint(Sketcher.Constraint("DistanceY", -1, 1, 2, 3, Q("1.4 in")))
sketch9.addConstraint(Sketcher.Constraint("DistanceY", -1, 1, 3, 3, Q("0.9 in")))
sketch9.addConstraint(Sketcher.Constraint("DistanceX", 1, 3, 2, 3, Q("1 in")))
sketch9.addConstraint(Sketcher.Constraint("DistanceY", 3, 3, 1, 3, Q("1 in")))
sketch9.addConstraint(Sketcher.Constraint("DistanceX", 1, 3, -1, 1, Q("4.25 in")))
sketch9.addConstraint(Sketcher.Constraint("DistanceY", -1, 1, 0, 3, Q("0.6673 in")))
sketch9.addConstraint(Sketcher.Constraint("DistanceX", 0, 3, -1, 1, Q("178.777 mm")))
sketch9.setExpression("Constraints[3]", "Params.sketch9_diameter")
sketch9.setExpression("Constraints[4]", "Params.sketch9_diameter2")
pocket3 = body.newObject("PartDesign::Pocket", "Pocket002")
pocket3.Profile = sketch9
pocket3.setExpression("Length", "Params.pocket3_length")
pocket3.Reversed = True

sketch10 = body.newObject("Sketcher::SketchObject", "Sketch009")
sketch10.AttachmentSupport = (doc.getObject("XZ_Plane"), [""])
sketch10.MapMode = "FlatFace"
sketch10.AttachmentOffset = App.Placement(App.Vector(0, 0, -0.25 * 25.4), App.Rotation())
sketch10.addGeometry(Part.Circle(App.Vector(-36, 36, 0), App.Vector(0, 0, 1), 6), False)
sketch10.addConstraint(Sketcher.Constraint("Diameter", 0, Q("0.5 in")))
sketch10.addConstraint(Sketcher.Constraint("DistanceY", -1, 1, 0, 3, Q("1.4 in")))
sketch10.addConstraint(Sketcher.Constraint("DistanceX", 0, 3, -1, 1, Q("36.1734 mm")))
sketch10.setExpression("Constraints[0]", "Params.sketch10_diameter")
pocket4 = body.newObject("PartDesign::Pocket", "Pocket003")
pocket4.Profile = sketch10
pocket4.setExpression("Length", "Params.pocket4_length")
pocket4.Reversed = True

doc.recompute()
